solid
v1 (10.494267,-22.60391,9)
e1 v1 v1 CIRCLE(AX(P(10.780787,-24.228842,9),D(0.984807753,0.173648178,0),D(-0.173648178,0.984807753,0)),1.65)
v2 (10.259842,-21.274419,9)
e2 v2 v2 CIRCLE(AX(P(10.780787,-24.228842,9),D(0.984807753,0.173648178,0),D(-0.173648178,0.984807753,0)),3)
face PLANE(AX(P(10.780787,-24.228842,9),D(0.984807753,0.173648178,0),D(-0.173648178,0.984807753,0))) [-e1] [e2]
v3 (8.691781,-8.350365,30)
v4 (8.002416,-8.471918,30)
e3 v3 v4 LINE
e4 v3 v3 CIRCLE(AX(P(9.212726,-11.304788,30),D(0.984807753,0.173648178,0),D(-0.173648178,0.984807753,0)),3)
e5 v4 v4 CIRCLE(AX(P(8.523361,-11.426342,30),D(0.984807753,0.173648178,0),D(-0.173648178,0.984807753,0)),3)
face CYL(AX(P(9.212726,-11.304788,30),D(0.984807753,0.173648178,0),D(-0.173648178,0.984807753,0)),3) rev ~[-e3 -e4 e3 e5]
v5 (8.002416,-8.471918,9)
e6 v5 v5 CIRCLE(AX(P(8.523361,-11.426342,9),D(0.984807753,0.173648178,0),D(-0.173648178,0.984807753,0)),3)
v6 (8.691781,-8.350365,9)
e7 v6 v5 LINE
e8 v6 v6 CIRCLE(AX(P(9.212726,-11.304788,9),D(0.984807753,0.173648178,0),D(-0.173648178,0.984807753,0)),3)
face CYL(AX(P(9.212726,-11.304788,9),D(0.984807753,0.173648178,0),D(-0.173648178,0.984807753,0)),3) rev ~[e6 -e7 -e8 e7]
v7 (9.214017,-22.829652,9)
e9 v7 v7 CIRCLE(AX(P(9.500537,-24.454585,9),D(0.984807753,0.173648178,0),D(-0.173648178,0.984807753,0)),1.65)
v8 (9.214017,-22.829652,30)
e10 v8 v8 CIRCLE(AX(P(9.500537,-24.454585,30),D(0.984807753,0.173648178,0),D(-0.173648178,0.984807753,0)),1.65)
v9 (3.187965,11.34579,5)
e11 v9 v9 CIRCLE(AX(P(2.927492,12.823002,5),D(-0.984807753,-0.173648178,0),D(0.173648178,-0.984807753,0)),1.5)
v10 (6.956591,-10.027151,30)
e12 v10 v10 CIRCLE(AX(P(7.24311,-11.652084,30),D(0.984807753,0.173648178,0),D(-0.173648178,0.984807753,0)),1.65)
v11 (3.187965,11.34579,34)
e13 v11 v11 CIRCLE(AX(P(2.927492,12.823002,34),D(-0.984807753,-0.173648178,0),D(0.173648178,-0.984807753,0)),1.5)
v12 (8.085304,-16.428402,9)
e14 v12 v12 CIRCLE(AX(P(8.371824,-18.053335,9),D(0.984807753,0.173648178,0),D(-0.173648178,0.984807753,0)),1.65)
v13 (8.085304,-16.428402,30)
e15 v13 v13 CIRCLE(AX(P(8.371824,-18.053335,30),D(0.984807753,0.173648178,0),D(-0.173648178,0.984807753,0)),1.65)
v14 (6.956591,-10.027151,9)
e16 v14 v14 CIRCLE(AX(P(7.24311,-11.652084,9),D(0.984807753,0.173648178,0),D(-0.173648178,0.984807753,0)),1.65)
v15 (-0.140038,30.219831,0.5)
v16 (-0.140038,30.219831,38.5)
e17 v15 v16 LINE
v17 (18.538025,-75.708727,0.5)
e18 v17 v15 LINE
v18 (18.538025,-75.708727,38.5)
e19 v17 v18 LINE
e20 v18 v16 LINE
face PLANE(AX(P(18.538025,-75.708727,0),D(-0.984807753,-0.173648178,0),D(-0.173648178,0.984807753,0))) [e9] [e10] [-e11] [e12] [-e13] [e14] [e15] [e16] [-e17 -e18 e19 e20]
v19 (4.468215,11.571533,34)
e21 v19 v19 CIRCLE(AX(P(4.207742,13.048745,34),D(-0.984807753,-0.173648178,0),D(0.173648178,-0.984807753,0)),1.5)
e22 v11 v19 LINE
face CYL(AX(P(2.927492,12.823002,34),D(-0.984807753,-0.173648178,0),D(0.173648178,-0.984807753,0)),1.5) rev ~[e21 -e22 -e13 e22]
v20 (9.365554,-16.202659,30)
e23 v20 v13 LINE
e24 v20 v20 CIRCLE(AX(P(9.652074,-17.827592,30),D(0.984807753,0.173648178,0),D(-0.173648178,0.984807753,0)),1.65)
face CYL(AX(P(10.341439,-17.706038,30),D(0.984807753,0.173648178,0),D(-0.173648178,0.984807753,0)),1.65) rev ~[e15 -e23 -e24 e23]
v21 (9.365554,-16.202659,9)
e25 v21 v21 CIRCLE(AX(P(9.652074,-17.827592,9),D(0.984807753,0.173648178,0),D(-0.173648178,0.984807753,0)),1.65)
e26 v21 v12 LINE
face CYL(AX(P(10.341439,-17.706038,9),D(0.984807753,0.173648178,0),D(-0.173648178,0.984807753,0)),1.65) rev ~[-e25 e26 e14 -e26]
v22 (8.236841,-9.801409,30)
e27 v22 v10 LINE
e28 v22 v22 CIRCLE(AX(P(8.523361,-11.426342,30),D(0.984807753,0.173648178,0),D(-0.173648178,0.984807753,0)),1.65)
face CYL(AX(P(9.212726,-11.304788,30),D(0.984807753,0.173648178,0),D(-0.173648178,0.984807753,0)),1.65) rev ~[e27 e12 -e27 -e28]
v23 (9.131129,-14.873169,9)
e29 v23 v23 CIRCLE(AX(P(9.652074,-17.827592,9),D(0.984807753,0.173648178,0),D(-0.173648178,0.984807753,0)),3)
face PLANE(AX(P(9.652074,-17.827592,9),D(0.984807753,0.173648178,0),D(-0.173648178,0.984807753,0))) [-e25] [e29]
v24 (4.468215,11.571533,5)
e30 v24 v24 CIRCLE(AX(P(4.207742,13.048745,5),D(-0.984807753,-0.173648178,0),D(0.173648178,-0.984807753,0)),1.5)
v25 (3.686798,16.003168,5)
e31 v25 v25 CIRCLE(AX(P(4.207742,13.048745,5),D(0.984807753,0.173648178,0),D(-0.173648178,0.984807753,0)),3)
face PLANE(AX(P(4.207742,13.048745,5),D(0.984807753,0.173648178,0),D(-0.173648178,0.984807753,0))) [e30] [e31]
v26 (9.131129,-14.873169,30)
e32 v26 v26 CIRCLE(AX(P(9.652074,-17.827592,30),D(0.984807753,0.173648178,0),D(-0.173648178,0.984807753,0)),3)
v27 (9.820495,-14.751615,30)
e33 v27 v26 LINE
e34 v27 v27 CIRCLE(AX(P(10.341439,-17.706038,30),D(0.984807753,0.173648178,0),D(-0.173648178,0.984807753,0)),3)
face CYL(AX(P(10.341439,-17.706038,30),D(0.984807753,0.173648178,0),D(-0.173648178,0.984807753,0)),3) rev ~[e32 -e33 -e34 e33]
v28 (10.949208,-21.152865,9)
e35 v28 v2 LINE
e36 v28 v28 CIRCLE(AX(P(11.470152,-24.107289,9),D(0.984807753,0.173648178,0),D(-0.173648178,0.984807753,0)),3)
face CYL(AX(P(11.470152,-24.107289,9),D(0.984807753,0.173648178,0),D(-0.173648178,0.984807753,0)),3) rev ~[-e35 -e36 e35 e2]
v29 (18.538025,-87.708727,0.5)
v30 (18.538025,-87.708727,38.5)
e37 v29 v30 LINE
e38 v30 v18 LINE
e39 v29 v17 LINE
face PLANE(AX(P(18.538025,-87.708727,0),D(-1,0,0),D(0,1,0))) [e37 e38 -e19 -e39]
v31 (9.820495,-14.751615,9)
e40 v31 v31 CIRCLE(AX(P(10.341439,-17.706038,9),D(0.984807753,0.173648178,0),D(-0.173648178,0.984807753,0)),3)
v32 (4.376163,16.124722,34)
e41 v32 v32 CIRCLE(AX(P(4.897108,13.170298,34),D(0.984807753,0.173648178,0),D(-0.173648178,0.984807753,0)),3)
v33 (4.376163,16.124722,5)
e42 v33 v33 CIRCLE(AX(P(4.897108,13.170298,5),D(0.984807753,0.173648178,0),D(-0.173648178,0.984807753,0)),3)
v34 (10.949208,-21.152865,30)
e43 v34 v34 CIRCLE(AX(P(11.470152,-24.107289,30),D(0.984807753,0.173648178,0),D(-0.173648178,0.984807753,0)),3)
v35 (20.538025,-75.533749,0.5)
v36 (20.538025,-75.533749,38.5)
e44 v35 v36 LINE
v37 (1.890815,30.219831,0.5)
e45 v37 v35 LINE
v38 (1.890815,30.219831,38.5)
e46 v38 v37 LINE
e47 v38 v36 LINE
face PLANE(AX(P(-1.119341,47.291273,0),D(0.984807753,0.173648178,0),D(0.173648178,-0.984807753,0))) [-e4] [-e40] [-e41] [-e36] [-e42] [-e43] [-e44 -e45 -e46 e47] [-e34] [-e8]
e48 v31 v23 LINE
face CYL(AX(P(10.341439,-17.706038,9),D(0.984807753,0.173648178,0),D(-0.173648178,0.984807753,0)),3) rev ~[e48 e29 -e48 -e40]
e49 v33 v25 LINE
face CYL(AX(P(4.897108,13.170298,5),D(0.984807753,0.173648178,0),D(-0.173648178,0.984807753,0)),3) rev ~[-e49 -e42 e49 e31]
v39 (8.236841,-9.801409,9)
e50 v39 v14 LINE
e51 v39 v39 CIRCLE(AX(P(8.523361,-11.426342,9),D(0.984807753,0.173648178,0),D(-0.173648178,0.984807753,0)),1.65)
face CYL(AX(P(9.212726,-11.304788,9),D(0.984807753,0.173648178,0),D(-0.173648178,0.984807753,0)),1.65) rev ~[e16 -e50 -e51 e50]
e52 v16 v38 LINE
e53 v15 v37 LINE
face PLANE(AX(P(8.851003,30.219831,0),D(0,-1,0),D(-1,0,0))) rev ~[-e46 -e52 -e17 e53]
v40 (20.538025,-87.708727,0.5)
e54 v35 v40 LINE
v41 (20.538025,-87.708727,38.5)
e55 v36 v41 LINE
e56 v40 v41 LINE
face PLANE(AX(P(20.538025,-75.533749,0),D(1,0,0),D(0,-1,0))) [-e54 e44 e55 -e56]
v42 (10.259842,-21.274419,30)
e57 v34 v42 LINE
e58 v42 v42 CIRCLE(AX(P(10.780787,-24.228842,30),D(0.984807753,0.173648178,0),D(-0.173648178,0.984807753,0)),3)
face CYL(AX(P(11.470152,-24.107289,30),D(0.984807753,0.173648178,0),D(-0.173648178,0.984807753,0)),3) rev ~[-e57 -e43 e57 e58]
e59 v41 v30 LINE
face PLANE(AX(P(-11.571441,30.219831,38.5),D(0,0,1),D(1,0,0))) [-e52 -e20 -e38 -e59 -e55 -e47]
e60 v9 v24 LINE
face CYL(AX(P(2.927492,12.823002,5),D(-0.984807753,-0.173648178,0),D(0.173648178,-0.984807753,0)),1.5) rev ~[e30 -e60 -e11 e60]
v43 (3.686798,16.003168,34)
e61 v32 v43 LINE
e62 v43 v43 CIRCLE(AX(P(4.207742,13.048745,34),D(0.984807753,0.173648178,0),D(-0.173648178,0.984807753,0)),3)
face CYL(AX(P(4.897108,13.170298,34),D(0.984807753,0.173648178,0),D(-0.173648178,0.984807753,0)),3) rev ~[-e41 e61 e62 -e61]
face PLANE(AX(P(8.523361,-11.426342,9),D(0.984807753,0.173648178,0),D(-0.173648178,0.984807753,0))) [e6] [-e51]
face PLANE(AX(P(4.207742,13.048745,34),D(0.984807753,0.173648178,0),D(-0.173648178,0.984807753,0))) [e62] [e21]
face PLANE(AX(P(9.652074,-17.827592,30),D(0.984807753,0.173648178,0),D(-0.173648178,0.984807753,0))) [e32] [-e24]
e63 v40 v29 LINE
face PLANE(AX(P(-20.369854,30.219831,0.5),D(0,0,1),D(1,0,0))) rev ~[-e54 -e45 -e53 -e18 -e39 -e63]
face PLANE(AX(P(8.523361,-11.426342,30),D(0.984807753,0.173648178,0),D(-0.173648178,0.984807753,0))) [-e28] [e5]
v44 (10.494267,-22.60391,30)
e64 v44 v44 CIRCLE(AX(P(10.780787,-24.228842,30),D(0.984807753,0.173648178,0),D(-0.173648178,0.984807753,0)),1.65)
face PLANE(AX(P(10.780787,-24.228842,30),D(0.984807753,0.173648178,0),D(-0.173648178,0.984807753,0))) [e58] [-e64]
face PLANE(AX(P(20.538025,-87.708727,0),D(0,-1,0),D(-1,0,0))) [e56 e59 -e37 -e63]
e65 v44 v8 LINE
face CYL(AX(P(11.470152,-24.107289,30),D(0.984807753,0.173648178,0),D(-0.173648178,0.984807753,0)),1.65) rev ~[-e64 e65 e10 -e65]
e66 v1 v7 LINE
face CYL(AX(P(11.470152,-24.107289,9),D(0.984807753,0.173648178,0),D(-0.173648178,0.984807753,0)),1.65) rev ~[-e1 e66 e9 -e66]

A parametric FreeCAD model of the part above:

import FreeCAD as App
import Part
import Sketcher
Q = App.Units.Quantity


def add_polygon(sketch, points):
    """Adds a closed chain of lines whose ends are joined by coincident constraints."""
    first, n = sketch.GeometryCount, len(points)
    for a, b in zip(points, points[1:] + points[:1]):
        sketch.addGeometry(Part.LineSegment(App.Vector(*a, 0), App.Vector(*b, 0)), False)
    for i in range(n):
        sketch.addConstraint(Sketcher.Constraint("Coincident", first + i, 2, first + (i + 1) % n, 1))

doc = App.newDocument("Part")
body = doc.addObject("PartDesign::Body", "Body")

# Sketch on XY plane
sketch1 = body.newObject("Sketcher::SketchObject", "Sketch")
sketch1.AttachmentSupport = (doc.getObject("XY_Plane"), [""])
sketch1.MapMode = "FlatFace"
add_polygon(sketch1, [(18.538025, -75.708727), (18.538025, -87.708727), (20.538025, -87.708727), (20.538025, -75.533749), (-1.119341, 47.291273), (-3.150194, 47.291273)])  # lines 0-5
sketch1.addConstraint([
    Sketcher.Constraint("Vertical", 0),
    Sketcher.Constraint("Horizontal", 1),
    Sketcher.Constraint("Vertical", 2),
    Sketcher.Constraint("Horizontal", 4),
    Sketcher.Constraint("Parallel", 3, 5),
    Sketcher.Constraint("DistanceX", 1, 1, 1, 2, 2.0),
    Sketcher.Constraint("DistanceY", 0, 2, 0, 1, 12.0),
    Sketcher.Constraint("Angle", 3, Q("100 deg")),
    Sketcher.Constraint("DistanceY", 0, 2, 3, 2, 135.0),
    Sketcher.Constraint("DistanceX", 4, 2, 4, 1, 2.030853),
    Sketcher.Constraint("DistanceY", 2, 2, -1, 1, 75.533749),
    Sketcher.Constraint("DistanceX", 3, 2, -1, 1, 1.119341),
])
pad1 = body.newObject("PartDesign::Pad", "Pad")
pad1.Profile = sketch1
pad1.Length = 39

# Sketch on an angled plane
sketch2 = body.newObject("Sketcher::SketchObject", "Sketch001")
sketch2.Placement = App.Placement(App.Vector(7.001696, 1.234588, 0), App.Rotation(App.Vector(0, 0, -1), App.Vector(-0.173648178, 0.984807753, 0), App.Vector(0.984807753, 0.173648178, 0), "ZXY"))
sketch2.addGeometry([
    Part.Circle(App.Vector(-30, -19.232816, 0), App.Vector(0, 0, 1), 1.65),  # 0
    Part.Circle(App.Vector(-9, -19.232816, 0), App.Vector(0, 0, 1), 1.65),  # 1
    Part.Circle(App.Vector(-30, -12.732816, 0), App.Vector(0, 0, 1), 1.65),  # 2
    Part.Circle(App.Vector(-9, -12.732816, 0), App.Vector(0, 0, 1), 1.65),  # 3
    Part.Circle(App.Vector(-9, -25.732816, 0), App.Vector(0, 0, 1), 1.65),  # 4
    Part.Circle(App.Vector(-30, -25.732816, 0), App.Vector(0, 0, 1), 1.65),  # 5
], False)
sketch2.addConstraint([
    Sketcher.Constraint("Equal", 0, 1),
    Sketcher.Constraint("Equal", 1, 2),
    Sketcher.Constraint("Equal", 2, 3),
    Sketcher.Constraint("Equal", 3, 4),
    Sketcher.Constraint("Equal", 4, 5),
    Sketcher.Constraint("Horizontal", 0, 3, 1, 3),
    Sketcher.Constraint("Horizontal", 2, 3, 3, 3),
    Sketcher.Constraint("Horizontal", 4, 3, 5, 3),
    Sketcher.Constraint("Vertical", 0, 3, 2, 3),
    Sketcher.Constraint("Vertical", 1, 3, 3, 3),
    Sketcher.Constraint("Vertical", 3, 3, 4, 3),
    Sketcher.Constraint("Vertical", 2, 3, 5, 3),
    Sketcher.Constraint("Diameter", 0, 3.3),
    Sketcher.Constraint("DistanceX", 0, 3, -1, 1, 30.0),
    Sketcher.Constraint("DistanceX", 1, 3, -1, 1, 9.0),
    Sketcher.Constraint("DistanceY", 4, 3, 3, 3, 13.0),
    Sketcher.Constraint("DistanceY", 0, 3, 2, 3, 6.5),
    Sketcher.Constraint("DistanceY", 0, 3, -1, 1, 19.232816),
])
pocket1 = body.newObject("PartDesign::Pocket", "Pocket")
pocket1.Profile = sketch2
pocket1.Length = 10

# Sketch on an angled plane
sketch3 = body.newObject("Sketcher::SketchObject", "Sketch002")
sketch3.Placement = App.Placement(App.Vector(5.03208, 0.887292, 0), App.Rotation(App.Vector(0, 0, 1), App.Vector(-0.173648178, 0.984807753, 0), App.Vector(-0.984807753, -0.173648178, 0), "ZXY"))
sketch3.addGeometry([
    Part.Circle(App.Vector(5, 12.119838, 0), App.Vector(0, 0, 1), 1.5),
    Part.Circle(App.Vector(34, 12.119838, 0), App.Vector(0, 0, 1), 1.5),
], False)
sketch3.addConstraint([
    Sketcher.Constraint("Equal", 0, 1),
    Sketcher.Constraint("Horizontal", 0, 3, 1, 3),
    Sketcher.Constraint("Diameter", 0, 3.0),
    Sketcher.Constraint("DistanceX", -1, 1, 0, 3, 5.0),
    Sketcher.Constraint("DistanceX", -1, 1, 1, 3, 34.0),
    Sketcher.Constraint("DistanceY", -1, 1, 0, 3, 12.119838),
])
pocket2 = body.newObject("PartDesign::Pocket", "Pocket001")
pocket2.Profile = sketch3
pocket2.Length = 10

# Sketch on XY plane
sketch4 = body.newObject("Sketcher::SketchObject", "Sketch003")
sketch4.AttachmentSupport = (doc.getObject("XY_Plane"), [""])
sketch4.MapMode = "FlatFace"
sketch4.AttachmentOffset = App.Placement(App.Vector(0, 0, 39), App.Rotation())
add_polygon(sketch4, [(-14.165689, 52.079234), (-14.165689, 42.079234), (14.843354, 42.079234), (14.843354, 52.079234)])  # lines 0-3
sketch4.addConstraint([
    Sketcher.Constraint("Vertical", 0),
    Sketcher.Constraint("Horizontal", 1),
    Sketcher.Constraint("Vertical", 2),
    Sketcher.Constraint("Horizontal", 3),
    Sketcher.Constraint("DistanceY", 0, 2, 0, 1, 10.0),
    Sketcher.Constraint("DistanceX", 1, 1, 1, 2, 29.009042),
    Sketcher.Constraint("DistanceX", 0, 2, -1, 1, 14.165689),
    Sketcher.Constraint("DistanceY", -1, 1, 0, 2, 42.079234),
])
pocket3 = body.newObject("PartDesign::Pocket", "Pocket002")
pocket3.Profile = sketch4
pocket3.Length = 40

# Sketch on an angled plane
sketch5 = body.newObject("Sketcher::SketchObject", "Sketch004")
sketch5.Placement = App.Placement(App.Vector(7.001696, 1.234588, 0), App.Rotation(App.Vector(0, 0, -1), App.Vector(-0.173648178, 0.984807753, 0), App.Vector(0.984807753, 0.173648178, 0), "ZXY"))
sketch5.addGeometry([
    Part.Circle(App.Vector(-34, 12.119838, 0), App.Vector(0, 0, 1), 3),  # 0
    Part.Circle(App.Vector(-5, 12.119838, 0), App.Vector(0, 0, 1), 3),  # 1
    Part.Circle(App.Vector(-30, -19.232816, 0), App.Vector(0, 0, 1), 3),  # 2
    Part.Circle(App.Vector(-9, -19.232816, 0), App.Vector(0, 0, 1), 3),  # 3
    Part.Circle(App.Vector(-30, -12.732816, 0), App.Vector(0, 0, 1), 3),  # 4
    Part.Circle(App.Vector(-9, -12.732816, 0), App.Vector(0, 0, 1), 3),  # 5
    Part.Circle(App.Vector(-30, -25.732816, 0), App.Vector(0, 0, 1), 3),  # 6
    Part.Circle(App.Vector(-9, -25.732816, 0), App.Vector(0, 0, 1), 3),  # 7
], False)
sketch5.addConstraint([
    Sketcher.Constraint("Equal", 0, 1),
    Sketcher.Constraint("Equal", 1, 2),
    Sketcher.Constraint("Equal", 2, 3),
    Sketcher.Constraint("Equal", 3, 4),
    Sketcher.Constraint("Equal", 4, 5),
    Sketcher.Constraint("Equal", 5, 6),
    Sketcher.Constraint("Equal", 6, 7),
    Sketcher.Constraint("Horizontal", 0, 3, 1, 3),
    Sketcher.Constraint("Horizontal", 2, 3, 3, 3),
    Sketcher.Constraint("Horizontal", 4, 3, 5, 3),
    Sketcher.Constraint("Horizontal", 6, 3, 7, 3),
    Sketcher.Constraint("Vertical", 2, 3, 4, 3),
    Sketcher.Constraint("Vertical", 3, 3, 5, 3),
    Sketcher.Constraint("Vertical", 4, 3, 6, 3),
    Sketcher.Constraint("Vertical", 5, 3, 7, 3),
    Sketcher.Constraint("Diameter", 0, 6.0),
    Sketcher.Constraint("DistanceX", 0, 3, -1, 1, 34.0),
    Sketcher.Constraint("DistanceX", 1, 3, -1, 1, 5.0),
    Sketcher.Constraint("DistanceX", 2, 3, -1, 1, 30.0),
    Sketcher.Constraint("DistanceX", 3, 3, -1, 1, 9.0),
    Sketcher.Constraint("DistanceY", 6, 3, 4, 3, 13.0),
    Sketcher.Constraint("DistanceY", 2, 3, 4, 3, 6.5),
    Sketcher.Constraint("DistanceY", -1, 1, 0, 3, 12.119838),
    Sketcher.Constraint("DistanceY", 2, 3, -1, 1, 19.232816),
])
pocket4 = body.newObject("PartDesign::Pocket", "Pocket003")
pocket4.Profile = sketch5
pocket4.Length = 0.7

# Sketch on XY plane
sketch6 = body.newObject("Sketcher::SketchObject", "Sketch005")
sketch6.AttachmentSupport = (doc.getObject("XY_Plane"), [""])
sketch6.MapMode = "FlatFace"
add_polygon(sketch6, [(8.851003, 49.596174), (8.851003, 30.219831), (-13.54503, 30.219831), (-13.54503, 49.596174)])  # lines 0-3
sketch6.addConstraint([
    Sketcher.Constraint("Vertical", 0),
    Sketcher.Constraint("Horizontal", 1),
    Sketcher.Constraint("Vertical", 2),
    Sketcher.Constraint("Horizontal", 3),
    Sketcher.Constraint("DistanceX", 1, 2, 1, 1, 22.396033),
    Sketcher.Constraint("DistanceY", 0, 2, 0, 1, 19.376343),
    Sketcher.Constraint("DistanceY", -1, 1, 0, 2, 30.219831),
    Sketcher.Constraint("DistanceX", 1, 2, -1, 1, 13.54503),
])
pocket5 = body.newObject("PartDesign::Pocket", "Pocket004")
pocket5.Profile = sketch6
pocket5.Length = 48
pocket5.Reversed = True

# Sketch on XZ plane
sketch7 = body.newObject("Sketcher::SketchObject", "Sketch006")
sketch7.AttachmentSupport = (doc.getObject("XZ_Plane"), [""])
sketch7.MapMode = "FlatFace"
sketch7.AttachmentOffset = App.Placement(App.Vector(0, 0, -30.219831), App.Rotation())
add_polygon(sketch7, [(-20.369854, 0), (-20.369854, 0.5), (28.585422, 0.5), (28.585422, 0)])  # lines 0-3
add_polygon(sketch7, [(-11.571441, 38.5), (-11.571441, 39), (28.585422, 39), (28.585422, 38.5)])  # lines 4-7
sketch7.addConstraint([
    Sketcher.Constraint("Vertical", 0),
    Sketcher.Constraint("Horizontal", 1),
    Sketcher.Constraint("Vertical", 2),
    Sketcher.Constraint("Horizontal", 3),
    Sketcher.Constraint("Vertical", 4),
    Sketcher.Constraint("Horizontal", 5),
    Sketcher.Constraint("Vertical", 6),
    Sketcher.Constraint("Horizontal", 7),
    Sketcher.Constraint("PointOnObject", 2, 2, -1),
    Sketcher.Constraint("Vertical", 2, 2, 5, 2),
    Sketcher.Constraint("Equal", 2, 4),
    Sketcher.Constraint("DistanceY", 0, 1, 0, 2, 0.5),
    Sketcher.Constraint("DistanceY", -1, 1, 4, 2, 39.0),
    Sketcher.Constraint("DistanceX", 1, 1, 1, 2, 48.955276),
    Sketcher.Constraint("DistanceX", 5, 1, 5, 2, 40.156863),
    Sketcher.Constraint("DistanceX", 4, 2, -1, 1, 11.571441),
])
pocket6 = body.newObject("PartDesign::Pocket", "Pocket005")
pocket6.Profile = sketch7
pocket6.Length = 150
pocket6.Reversed = True

doc.recompute()
